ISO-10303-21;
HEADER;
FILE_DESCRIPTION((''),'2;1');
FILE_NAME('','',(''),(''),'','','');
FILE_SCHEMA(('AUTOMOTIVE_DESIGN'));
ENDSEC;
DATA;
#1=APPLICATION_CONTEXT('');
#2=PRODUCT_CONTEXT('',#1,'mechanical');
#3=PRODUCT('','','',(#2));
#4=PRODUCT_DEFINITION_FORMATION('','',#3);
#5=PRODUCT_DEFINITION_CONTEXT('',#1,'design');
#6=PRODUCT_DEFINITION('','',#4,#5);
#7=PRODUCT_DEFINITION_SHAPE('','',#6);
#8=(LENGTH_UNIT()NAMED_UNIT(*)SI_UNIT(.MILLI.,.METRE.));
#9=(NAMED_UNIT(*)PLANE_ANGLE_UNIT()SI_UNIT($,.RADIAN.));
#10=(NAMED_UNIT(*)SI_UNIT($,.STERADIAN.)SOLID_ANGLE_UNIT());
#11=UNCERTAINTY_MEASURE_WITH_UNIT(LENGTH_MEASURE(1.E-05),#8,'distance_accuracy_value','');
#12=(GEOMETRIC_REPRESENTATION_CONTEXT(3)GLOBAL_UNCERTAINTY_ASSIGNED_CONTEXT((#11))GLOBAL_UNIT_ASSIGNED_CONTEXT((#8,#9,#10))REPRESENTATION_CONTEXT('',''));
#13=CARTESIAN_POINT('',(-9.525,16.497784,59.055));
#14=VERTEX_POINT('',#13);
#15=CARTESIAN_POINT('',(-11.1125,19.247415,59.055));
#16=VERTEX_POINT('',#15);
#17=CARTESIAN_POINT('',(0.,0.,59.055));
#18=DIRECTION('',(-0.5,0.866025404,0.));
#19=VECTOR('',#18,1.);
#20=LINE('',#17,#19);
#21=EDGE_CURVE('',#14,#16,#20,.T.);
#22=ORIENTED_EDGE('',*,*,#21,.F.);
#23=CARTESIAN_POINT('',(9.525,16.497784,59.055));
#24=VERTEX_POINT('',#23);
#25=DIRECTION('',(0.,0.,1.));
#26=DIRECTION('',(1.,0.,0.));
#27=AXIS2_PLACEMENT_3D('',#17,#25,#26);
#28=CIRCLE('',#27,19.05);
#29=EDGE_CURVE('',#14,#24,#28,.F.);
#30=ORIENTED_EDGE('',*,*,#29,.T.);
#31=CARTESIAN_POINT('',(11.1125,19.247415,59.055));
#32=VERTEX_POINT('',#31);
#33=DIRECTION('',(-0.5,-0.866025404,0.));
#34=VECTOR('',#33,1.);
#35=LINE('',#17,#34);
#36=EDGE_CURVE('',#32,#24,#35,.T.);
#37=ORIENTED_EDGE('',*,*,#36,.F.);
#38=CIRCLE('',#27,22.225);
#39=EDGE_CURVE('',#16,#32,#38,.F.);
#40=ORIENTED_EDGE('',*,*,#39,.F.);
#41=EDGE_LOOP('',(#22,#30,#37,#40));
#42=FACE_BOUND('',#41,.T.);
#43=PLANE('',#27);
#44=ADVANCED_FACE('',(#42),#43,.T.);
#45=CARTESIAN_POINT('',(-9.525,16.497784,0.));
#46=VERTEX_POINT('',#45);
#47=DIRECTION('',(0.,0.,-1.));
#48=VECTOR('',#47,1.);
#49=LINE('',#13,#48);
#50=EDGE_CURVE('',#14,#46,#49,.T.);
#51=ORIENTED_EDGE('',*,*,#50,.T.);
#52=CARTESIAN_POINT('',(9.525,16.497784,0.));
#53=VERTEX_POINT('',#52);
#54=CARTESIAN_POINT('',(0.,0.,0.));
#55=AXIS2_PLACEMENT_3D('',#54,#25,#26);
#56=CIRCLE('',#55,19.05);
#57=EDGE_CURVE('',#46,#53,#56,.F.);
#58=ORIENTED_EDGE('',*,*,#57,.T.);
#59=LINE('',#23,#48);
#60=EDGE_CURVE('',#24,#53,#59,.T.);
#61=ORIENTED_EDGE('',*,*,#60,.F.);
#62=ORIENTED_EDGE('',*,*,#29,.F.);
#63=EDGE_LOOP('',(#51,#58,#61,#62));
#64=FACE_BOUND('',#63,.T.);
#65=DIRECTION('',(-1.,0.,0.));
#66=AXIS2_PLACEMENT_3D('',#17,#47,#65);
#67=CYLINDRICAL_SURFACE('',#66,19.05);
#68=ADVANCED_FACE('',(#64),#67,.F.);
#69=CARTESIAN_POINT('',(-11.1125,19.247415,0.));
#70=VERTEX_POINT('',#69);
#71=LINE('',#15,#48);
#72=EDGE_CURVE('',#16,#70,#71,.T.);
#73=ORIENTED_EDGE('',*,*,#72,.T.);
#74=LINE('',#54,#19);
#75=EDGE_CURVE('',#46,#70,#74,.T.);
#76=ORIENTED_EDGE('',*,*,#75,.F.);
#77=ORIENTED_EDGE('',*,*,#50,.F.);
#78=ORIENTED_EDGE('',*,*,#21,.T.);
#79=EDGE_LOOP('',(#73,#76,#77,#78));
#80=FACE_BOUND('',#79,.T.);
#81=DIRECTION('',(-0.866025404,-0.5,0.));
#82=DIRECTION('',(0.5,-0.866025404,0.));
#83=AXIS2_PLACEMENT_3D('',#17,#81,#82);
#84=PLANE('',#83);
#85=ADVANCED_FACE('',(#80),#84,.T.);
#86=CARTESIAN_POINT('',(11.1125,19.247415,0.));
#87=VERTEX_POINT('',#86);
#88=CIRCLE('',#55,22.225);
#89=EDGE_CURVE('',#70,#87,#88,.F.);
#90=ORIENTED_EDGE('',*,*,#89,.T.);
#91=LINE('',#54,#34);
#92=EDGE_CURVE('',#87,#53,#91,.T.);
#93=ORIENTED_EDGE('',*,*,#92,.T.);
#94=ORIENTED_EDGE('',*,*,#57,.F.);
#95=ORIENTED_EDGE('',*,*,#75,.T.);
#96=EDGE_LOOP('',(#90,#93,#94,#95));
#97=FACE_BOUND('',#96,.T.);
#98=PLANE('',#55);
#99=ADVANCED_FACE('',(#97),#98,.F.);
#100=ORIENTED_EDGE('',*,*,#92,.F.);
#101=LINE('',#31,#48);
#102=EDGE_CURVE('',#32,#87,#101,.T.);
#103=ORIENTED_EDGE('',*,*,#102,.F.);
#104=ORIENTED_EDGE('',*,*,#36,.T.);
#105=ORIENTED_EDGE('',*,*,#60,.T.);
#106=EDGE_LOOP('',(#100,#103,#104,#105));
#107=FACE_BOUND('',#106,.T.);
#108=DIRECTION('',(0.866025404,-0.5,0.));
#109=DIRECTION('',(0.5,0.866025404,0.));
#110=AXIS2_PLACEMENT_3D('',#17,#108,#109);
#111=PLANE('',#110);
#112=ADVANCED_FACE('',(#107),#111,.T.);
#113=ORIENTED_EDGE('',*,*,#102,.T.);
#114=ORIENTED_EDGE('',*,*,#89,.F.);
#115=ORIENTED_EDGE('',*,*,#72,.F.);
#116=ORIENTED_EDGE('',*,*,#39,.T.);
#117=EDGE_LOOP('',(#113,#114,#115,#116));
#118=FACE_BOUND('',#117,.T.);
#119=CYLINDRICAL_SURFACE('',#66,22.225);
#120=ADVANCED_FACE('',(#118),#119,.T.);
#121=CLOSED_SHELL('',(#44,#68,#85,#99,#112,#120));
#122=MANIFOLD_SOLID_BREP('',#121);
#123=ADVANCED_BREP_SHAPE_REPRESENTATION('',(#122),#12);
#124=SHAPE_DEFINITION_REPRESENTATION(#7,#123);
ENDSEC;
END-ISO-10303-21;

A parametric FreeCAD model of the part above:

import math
import FreeCAD as App
import Part
import Sketcher
Q = App.Units.Quantity

doc = App.newDocument("Part")
body = doc.addObject("PartDesign::Body", "Body")

sketch1 = body.newObject("Sketcher::SketchObject", "Sketch")
sketch1.AttachmentSupport = (doc.getObject("XY_Plane"), [""])
sketch1.MapMode = "FlatFace"
sketch1.addGeometry([
    Part.ArcOfCircle(Part.Circle(App.Vector(0, 0, 0), App.Vector(0, 0, 1), 22.2), math.radians(60), math.radians(120)),
    Part.LineSegment(App.Vector(-11.1, 19.2, 0), App.Vector(-9.5, 16.5, 0)),
    Part.ArcOfCircle(Part.Circle(App.Vector(0, 0, 0), App.Vector(0, 0, 1), 19), math.radians(60), math.radians(120)),
    Part.LineSegment(App.Vector(9.5, 16.5, 0), App.Vector(11.1, 19.2, 0)),
], False)
sketch1.addConstraint([
    Sketcher.Constraint("Coincident", 0, 2, 1, 1),
    Sketcher.Constraint("Coincident", 1, 2, 2, 2),
    Sketcher.Constraint("Coincident", 2, 1, 3, 1),
    Sketcher.Constraint("Coincident", 3, 2, 0, 1),
    Sketcher.Constraint("Coincident", 0, 3, -1, 1),
    Sketcher.Constraint("Coincident", 2, 3, -1, 1),
    Sketcher.Constraint("Horizontal", 1, 2, 2, 1),
    Sketcher.Constraint("Horizontal", 0, 2, 3, 2),
    Sketcher.Constraint("Radius", 2, Q("0.75 in")),
    Sketcher.Constraint("Angle", 1, Q("-60 deg")),
    Sketcher.Constraint("Radius", 0, Q("0.875 in")),
    Sketcher.Constraint("DistanceX", 1, 2, 2, 1, Q("0.75 in")),
])
pad1 = body.newObject("PartDesign::Pad", "Pad")
pad1.Profile = sketch1
pad1.Length = Q("2.325 in")

doc.recompute()
